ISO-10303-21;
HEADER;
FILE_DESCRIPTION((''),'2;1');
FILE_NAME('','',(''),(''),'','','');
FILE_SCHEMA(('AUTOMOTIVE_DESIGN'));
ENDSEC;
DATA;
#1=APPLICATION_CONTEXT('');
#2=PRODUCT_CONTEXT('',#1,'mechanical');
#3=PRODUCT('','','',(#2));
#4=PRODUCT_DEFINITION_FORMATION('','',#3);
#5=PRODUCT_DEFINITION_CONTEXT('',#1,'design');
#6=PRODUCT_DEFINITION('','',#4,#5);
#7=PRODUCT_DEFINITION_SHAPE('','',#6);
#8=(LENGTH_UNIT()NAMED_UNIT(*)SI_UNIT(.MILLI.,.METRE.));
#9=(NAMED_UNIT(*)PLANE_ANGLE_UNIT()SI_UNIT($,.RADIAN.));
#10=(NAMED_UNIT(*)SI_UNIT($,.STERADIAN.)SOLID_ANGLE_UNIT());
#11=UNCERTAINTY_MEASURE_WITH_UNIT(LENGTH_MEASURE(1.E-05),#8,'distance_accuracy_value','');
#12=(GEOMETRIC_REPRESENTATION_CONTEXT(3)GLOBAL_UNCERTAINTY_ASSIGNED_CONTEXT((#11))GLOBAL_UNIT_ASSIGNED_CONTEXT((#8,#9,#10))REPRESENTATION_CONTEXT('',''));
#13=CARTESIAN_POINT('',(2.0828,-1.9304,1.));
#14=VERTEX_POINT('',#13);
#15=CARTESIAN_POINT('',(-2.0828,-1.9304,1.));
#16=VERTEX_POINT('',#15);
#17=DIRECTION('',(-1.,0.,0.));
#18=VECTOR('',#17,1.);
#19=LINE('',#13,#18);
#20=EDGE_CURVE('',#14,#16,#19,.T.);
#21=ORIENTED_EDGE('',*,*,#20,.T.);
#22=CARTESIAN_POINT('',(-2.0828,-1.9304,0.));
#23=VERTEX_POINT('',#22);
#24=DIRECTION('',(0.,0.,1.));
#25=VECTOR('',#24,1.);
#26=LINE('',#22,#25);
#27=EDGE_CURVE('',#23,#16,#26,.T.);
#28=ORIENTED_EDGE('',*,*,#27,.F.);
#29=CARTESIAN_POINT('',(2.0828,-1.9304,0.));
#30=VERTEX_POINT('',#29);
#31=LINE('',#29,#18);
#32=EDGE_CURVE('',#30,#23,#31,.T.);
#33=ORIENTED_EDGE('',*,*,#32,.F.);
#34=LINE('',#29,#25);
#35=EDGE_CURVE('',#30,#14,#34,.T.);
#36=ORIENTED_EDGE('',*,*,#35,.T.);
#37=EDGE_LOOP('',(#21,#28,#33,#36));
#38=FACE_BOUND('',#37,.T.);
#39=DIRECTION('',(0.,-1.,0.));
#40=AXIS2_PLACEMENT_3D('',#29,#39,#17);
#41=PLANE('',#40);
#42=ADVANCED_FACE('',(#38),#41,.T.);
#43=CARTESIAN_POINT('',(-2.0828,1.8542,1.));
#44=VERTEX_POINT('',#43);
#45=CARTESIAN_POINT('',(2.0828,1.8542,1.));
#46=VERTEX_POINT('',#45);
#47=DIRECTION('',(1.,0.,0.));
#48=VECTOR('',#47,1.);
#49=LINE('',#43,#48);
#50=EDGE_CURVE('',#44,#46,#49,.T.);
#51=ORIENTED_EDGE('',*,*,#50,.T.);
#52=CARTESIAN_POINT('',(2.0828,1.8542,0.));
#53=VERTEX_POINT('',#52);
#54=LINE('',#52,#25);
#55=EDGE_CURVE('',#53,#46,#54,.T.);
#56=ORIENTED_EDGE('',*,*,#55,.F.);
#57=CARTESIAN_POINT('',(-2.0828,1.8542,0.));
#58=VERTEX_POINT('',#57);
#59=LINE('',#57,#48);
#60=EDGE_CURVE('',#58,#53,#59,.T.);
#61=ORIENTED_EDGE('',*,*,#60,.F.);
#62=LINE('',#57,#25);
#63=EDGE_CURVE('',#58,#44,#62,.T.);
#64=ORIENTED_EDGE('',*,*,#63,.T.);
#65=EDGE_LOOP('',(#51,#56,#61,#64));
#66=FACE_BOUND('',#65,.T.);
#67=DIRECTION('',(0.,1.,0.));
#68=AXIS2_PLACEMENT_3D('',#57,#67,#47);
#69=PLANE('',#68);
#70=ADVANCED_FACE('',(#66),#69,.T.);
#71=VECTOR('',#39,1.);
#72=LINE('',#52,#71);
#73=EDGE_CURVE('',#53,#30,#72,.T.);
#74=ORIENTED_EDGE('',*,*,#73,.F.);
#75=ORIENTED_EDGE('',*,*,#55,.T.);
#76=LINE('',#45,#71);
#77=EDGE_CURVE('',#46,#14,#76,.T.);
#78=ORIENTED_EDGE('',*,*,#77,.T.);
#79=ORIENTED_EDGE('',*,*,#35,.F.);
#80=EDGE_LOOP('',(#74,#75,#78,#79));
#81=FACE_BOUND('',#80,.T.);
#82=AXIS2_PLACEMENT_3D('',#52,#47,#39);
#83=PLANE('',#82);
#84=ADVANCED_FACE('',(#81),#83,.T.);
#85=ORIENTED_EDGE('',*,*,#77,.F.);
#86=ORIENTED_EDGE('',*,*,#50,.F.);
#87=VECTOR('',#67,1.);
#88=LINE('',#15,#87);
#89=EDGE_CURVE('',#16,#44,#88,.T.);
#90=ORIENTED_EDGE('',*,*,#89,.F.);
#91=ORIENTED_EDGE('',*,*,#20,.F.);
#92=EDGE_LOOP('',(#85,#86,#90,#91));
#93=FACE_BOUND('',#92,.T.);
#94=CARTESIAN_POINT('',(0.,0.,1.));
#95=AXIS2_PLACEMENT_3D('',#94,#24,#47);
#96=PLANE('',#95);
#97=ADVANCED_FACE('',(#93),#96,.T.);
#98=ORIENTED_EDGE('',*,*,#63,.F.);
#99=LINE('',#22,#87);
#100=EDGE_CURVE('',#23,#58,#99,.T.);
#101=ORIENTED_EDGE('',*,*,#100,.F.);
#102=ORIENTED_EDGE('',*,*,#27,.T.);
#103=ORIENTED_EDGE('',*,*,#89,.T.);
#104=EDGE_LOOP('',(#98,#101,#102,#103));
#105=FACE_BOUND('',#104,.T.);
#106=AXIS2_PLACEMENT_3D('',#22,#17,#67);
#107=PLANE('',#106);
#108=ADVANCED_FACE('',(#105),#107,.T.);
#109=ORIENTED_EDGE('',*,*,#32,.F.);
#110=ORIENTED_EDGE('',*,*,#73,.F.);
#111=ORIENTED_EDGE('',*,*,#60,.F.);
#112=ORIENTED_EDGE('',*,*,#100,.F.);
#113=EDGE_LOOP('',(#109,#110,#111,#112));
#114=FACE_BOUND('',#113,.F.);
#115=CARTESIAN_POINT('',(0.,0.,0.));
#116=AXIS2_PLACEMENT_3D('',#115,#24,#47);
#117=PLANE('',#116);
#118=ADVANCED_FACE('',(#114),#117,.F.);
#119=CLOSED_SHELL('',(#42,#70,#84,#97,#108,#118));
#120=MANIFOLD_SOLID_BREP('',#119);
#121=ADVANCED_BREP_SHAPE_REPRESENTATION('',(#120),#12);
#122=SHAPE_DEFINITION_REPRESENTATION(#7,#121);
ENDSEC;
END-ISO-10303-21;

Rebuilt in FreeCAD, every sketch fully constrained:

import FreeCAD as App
import Part
import Sketcher

V = App.Vector
Q = App.Units.Quantity


def add_polygon(sketch, points):
    """Adds a closed chain of lines whose ends are joined by coincident constraints."""
    first, n = sketch.GeometryCount, len(points)
    for a, b in zip(points, points[1:] + points[:1]):
        sketch.addGeometry(Part.LineSegment(App.Vector(*a, 0), App.Vector(*b, 0)), False)
    for i in range(n):
        sketch.addConstraint(Sketcher.Constraint("Coincident", first + i, 2, first + (i + 1) % n, 1))

doc = App.newDocument("Part")
body = doc.addObject("PartDesign::Body", "Body")

# Sketch on XY plane
sketch1 = body.newObject("Sketcher::SketchObject", "Sketch")
sketch1.AttachmentSupport = (doc.getObject("XY_Plane"), [""])
sketch1.MapMode = "FlatFace"
add_polygon(sketch1, [(2.1, 1.9), (-2.1, 1.9), (-2.1, -1.9), (2.1, -1.9)])  # lines 0-3
sketch1.addConstraint([
    Sketcher.Constraint("Horizontal", 0),
    Sketcher.Constraint("Vertical", 1),
    Sketcher.Constraint("Horizontal", 2),
    Sketcher.Constraint("Vertical", 3),
    Sketcher.Constraint("DistanceX", 0, 2, 0, 1, Q("0.164 in")),
    Sketcher.Constraint("DistanceY", 1, 2, 1, 1, Q("0.149 in")),
    Sketcher.Constraint("DistanceX", 0, 2, -1, 1, Q("0.082 in")),
    Sketcher.Constraint("DistanceY", -1, 1, 0, 2, Q("0.073 in")),
])
pad1 = body.newObject("PartDesign::Pad", "Pad")
pad1.Profile = sketch1
pad1.Length = 1

doc.recompute()
